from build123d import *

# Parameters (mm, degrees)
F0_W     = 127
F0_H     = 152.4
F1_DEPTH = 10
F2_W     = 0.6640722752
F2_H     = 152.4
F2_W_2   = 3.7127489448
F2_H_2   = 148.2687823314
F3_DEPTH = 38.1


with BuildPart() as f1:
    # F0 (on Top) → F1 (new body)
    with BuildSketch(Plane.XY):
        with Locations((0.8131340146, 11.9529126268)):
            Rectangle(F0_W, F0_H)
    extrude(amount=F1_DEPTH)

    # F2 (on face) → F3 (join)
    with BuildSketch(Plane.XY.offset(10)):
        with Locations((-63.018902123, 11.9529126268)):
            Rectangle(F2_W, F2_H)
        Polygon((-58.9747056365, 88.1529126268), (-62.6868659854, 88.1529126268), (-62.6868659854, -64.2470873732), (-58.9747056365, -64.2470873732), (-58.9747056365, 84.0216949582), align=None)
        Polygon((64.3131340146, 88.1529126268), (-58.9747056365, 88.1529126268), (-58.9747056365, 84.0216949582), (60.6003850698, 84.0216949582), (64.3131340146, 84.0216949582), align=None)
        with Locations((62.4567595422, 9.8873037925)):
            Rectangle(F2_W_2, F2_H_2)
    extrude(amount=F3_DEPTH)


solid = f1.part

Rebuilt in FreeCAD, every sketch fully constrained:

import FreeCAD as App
import Part
import Sketcher
from FreeCAD import Vector
Q = App.Units.Quantity


def add_polygon(sketch, points):
    """Adds a closed chain of lines whose ends are joined by coincident constraints."""
    first, n = sketch.GeometryCount, len(points)
    for a, b in zip(points, points[1:] + points[:1]):
        sketch.addGeometry(Part.LineSegment(App.Vector(*a, 0), App.Vector(*b, 0)), False)
    for i in range(n):
        sketch.addConstraint(Sketcher.Constraint("Coincident", first + i, 2, first + (i + 1) % n, 1))

doc = App.newDocument("Part")
body = doc.addObject("PartDesign::Body", "Body")

# Sketch on XY plane
sketch1 = doc.addObject("Sketcher::SketchObject", "Sketch")
body.addObject(sketch1)
sketch1.AttachmentSupport = (doc.XY_Plane, [""])
sketch1.MapMode = "FlatFace"
add_polygon(sketch1, [(-62.686866, 88.152913), (-62.686866, -64.247087), (64.313134, -64.247087), (64.313134, 88.152913)])  # lines 0-3
sketch1.addConstraint(Sketcher.Constraint("Vertical", 0))
sketch1.addConstraint(Sketcher.Constraint("Horizontal", 1))
sketch1.addConstraint(Sketcher.Constraint("Vertical", 2))
sketch1.addConstraint(Sketcher.Constraint("Horizontal", 3))
sketch1.addConstraint(Sketcher.Constraint("DistanceX", 1, 1, 1, 2, Q("5 in")))
sketch1.addConstraint(Sketcher.Constraint("DistanceY", 0, 2, 0, 1, Q("6 in")))
sketch1.addConstraint(Sketcher.Constraint("DistanceX", 0, 2, -1, 1, 62.686866))
sketch1.addConstraint(Sketcher.Constraint("DistanceY", 0, 2, -1, 1, 64.247087))
pad1 = doc.addObject("PartDesign::Pad", "Pad")
body.addObject(pad1)
pad1.Profile = sketch1
pad1.Length = 10

# Sketch on XY plane
sketch2 = doc.addObject("Sketcher::SketchObject", "Sketch001")
body.addObject(sketch2)
sketch2.AttachmentSupport = (doc.XY_Plane, [""])
sketch2.MapMode = "FlatFace"
sketch2.AttachmentOffset = App.Placement(Vector(0, 0, 10), App.Rotation())
add_polygon(sketch2, [(-63.350938, 88.152913), (-63.350938, -64.247087), (-58.974706, -64.247087), (-58.974706, 84.021695), (60.600385, 84.021695), (60.600385, -64.247087), (64.313134, -64.247087), (64.313134, 88.152913)])  # lines 0-7
sketch2.addConstraint(Sketcher.Constraint("Vertical", 0))
sketch2.addConstraint(Sketcher.Constraint("Horizontal", 1))
sketch2.addConstraint(Sketcher.Constraint("Vertical", 2))
sketch2.addConstraint(Sketcher.Constraint("Horizontal", 3))
sketch2.addConstraint(Sketcher.Constraint("Vertical", 4))
sketch2.addConstraint(Sketcher.Constraint("Horizontal", 5))
sketch2.addConstraint(Sketcher.Constraint("Vertical", 6))
sketch2.addConstraint(Sketcher.Constraint("Horizontal", 7))
sketch2.addConstraint(Sketcher.Constraint("Horizontal", 1, 2, 4, 2))
sketch2.addConstraint(Sketcher.Constraint("DistanceY", 0, 2, 0, 1, Q("6 in")))
sketch2.addConstraint(Sketcher.Constraint("DistanceX", 3, 1, 3, 2, 119.575091))
sketch2.addConstraint(Sketcher.Constraint("DistanceX", 5, 1, 5, 2, 3.712749))
sketch2.addConstraint(Sketcher.Constraint("DistanceX", 1, 1, 1, 2, 4.376233))
sketch2.addConstraint(Sketcher.Constraint("DistanceY", 2, 1, 2, 2, 148.268782))
sketch2.addConstraint(Sketcher.Constraint("DistanceX", 0, 2, -1, 1, 63.350938))
sketch2.addConstraint(Sketcher.Constraint("DistanceY", 0, 2, -1, 1, 64.247087))
pad2 = doc.addObject("PartDesign::Pad", "Pad001")
body.addObject(pad2)
pad2.Profile = sketch2
pad2.Length = Q("1.5 in")

doc.recompute()
